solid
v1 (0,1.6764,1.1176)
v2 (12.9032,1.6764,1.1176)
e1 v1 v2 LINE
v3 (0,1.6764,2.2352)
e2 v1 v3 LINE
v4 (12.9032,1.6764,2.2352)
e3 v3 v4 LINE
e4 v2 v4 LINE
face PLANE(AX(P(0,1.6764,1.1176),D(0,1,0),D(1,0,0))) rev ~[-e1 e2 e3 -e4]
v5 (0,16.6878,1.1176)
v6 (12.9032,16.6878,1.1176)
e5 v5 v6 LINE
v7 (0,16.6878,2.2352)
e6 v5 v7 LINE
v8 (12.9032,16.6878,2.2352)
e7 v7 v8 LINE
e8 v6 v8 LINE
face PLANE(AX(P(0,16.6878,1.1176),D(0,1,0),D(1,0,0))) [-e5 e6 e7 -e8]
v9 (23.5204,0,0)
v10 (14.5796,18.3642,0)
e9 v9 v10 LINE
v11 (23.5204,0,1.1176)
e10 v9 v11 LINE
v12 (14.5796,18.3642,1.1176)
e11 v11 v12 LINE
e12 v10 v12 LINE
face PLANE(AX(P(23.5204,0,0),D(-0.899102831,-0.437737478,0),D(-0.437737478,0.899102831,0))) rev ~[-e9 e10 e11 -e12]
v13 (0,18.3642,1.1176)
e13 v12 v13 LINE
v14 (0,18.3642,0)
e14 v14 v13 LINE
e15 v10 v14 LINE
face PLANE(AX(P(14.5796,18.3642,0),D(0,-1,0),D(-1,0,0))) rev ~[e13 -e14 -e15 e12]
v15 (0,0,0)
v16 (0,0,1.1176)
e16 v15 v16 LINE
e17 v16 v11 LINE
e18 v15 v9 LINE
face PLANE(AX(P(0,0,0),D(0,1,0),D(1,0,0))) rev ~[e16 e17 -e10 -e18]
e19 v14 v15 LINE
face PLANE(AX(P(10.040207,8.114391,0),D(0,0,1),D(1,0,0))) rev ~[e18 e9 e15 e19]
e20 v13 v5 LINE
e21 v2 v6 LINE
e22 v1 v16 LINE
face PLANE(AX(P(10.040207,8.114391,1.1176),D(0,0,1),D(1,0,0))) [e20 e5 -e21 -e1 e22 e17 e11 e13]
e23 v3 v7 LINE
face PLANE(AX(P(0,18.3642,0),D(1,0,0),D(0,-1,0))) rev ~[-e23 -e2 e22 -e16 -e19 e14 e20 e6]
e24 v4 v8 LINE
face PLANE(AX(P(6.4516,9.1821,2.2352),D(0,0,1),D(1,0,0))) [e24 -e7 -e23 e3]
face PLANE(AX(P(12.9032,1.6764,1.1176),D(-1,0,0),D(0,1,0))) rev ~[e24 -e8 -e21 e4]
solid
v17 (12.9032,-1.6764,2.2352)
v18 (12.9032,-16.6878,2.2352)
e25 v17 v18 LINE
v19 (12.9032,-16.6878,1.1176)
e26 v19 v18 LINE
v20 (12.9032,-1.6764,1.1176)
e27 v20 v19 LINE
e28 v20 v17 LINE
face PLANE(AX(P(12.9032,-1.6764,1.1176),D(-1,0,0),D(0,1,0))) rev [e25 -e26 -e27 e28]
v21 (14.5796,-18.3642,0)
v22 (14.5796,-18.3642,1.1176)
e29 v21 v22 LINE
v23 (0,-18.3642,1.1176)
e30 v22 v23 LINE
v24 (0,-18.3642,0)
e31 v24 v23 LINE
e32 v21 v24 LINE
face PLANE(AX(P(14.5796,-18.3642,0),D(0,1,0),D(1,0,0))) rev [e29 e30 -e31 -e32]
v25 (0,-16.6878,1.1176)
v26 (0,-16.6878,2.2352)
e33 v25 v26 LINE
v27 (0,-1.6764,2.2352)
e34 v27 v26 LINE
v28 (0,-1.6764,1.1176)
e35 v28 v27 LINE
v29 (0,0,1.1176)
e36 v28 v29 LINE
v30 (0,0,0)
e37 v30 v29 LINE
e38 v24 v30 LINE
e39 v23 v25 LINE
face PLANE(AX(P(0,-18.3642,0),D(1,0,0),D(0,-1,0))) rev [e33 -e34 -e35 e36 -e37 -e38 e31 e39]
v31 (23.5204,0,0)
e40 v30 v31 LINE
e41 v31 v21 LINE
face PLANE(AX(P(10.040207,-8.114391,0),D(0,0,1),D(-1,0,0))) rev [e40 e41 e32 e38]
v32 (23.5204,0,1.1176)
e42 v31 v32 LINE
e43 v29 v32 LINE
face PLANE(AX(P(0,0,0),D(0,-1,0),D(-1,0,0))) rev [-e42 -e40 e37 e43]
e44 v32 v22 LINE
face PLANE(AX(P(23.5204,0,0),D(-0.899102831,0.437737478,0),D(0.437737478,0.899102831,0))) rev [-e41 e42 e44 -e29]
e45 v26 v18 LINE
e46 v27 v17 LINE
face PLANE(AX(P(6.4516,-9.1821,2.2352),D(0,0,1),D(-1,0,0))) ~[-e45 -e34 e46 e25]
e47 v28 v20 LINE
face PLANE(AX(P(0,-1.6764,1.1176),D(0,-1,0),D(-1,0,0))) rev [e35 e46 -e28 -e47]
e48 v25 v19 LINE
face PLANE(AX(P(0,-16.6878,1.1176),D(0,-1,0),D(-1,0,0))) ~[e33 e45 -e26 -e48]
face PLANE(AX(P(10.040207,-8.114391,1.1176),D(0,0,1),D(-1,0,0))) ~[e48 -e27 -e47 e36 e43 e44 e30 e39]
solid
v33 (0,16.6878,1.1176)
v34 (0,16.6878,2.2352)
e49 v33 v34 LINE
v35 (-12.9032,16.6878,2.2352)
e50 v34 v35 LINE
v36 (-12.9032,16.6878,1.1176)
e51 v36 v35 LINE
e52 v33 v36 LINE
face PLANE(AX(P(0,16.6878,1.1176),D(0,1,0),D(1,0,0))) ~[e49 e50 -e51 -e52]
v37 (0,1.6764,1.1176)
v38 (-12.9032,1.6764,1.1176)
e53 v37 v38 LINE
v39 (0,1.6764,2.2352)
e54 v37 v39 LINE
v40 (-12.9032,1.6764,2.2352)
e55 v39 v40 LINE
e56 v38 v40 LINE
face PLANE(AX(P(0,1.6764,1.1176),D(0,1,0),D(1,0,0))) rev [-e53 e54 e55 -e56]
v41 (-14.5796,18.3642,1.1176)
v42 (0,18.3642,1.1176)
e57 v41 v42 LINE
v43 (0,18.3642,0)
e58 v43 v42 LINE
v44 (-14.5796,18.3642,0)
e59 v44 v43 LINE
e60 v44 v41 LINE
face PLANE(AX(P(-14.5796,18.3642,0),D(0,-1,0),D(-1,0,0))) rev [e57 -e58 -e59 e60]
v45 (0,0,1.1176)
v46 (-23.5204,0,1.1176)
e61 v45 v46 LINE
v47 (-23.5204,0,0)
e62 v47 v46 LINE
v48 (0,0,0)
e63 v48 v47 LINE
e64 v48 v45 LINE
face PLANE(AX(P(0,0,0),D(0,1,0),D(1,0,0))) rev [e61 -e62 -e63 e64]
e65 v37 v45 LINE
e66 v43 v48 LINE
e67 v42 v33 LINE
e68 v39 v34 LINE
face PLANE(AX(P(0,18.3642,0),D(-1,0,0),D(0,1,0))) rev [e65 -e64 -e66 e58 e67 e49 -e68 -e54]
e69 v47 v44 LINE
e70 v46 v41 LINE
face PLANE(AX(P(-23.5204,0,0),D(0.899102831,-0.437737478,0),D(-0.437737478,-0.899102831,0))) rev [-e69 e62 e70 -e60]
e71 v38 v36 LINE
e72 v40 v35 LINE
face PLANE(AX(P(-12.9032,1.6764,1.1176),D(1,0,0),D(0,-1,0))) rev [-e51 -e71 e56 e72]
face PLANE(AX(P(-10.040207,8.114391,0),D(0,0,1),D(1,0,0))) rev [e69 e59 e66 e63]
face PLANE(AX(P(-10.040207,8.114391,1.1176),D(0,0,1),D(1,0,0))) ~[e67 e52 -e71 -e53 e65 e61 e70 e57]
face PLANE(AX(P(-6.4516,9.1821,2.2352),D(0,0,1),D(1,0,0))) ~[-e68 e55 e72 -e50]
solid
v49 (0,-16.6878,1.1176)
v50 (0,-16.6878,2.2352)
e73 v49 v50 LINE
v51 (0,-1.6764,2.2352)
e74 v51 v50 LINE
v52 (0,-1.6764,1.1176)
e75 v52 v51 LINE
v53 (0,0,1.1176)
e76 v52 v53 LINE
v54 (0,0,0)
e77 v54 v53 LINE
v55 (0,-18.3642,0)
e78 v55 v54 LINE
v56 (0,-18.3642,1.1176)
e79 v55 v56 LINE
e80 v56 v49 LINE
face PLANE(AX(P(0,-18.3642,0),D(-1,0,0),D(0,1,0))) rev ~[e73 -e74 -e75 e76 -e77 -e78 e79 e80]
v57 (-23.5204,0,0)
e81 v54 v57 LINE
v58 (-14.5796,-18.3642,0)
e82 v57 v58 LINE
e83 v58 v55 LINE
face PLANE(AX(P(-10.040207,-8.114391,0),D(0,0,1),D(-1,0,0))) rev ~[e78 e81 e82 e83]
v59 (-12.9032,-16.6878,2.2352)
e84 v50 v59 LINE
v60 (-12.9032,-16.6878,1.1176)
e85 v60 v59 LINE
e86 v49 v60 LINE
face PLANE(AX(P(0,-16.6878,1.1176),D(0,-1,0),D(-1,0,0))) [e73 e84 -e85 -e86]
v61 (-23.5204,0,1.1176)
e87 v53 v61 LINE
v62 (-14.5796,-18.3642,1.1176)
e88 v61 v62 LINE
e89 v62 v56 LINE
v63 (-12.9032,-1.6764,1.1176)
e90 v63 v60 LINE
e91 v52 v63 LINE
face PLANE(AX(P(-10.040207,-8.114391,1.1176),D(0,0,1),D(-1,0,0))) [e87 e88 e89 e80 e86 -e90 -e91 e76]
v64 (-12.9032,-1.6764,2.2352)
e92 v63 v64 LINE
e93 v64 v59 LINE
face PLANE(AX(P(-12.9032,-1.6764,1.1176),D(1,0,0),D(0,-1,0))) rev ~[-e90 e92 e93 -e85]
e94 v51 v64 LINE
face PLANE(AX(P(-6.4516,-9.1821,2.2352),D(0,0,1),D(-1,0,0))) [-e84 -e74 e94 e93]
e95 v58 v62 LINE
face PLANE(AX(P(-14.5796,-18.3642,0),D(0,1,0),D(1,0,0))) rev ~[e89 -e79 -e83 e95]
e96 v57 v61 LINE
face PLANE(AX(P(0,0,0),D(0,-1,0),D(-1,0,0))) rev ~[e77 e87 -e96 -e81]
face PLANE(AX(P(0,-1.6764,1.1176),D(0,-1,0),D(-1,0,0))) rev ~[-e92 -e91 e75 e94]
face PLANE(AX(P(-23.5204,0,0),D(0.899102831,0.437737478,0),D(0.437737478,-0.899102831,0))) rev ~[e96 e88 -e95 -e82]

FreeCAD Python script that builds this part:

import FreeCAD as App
import Part
import Sketcher
from FreeCAD import Vector
Q = App.Units.Quantity

doc = App.newDocument("Part")
body = doc.addObject("PartDesign::Body", "Body")

# Sketch on XY plane
sketch1 = body.newObject("Sketcher::SketchObject", "Sketch")
sketch1.AttachmentSupport = (doc.getObject("XY_Plane"), [""])
sketch1.MapMode = "FlatFace"
sketch1.addGeometry([
    Part.LineSegment(Vector(0, 18, 0), Vector(0, 0, 0)),
    Part.LineSegment(Vector(0, 0, 0), Vector(24, 0, 0)),
    Part.LineSegment(Vector(24, 0, 0), Vector(15, 18, 0)),
    Part.LineSegment(Vector(15, 18, 0), Vector(0, 18, 0)),
], False)
sketch1.addConstraint([
    Sketcher.Constraint("Coincident", 0, 2, 1, 1),
    Sketcher.Constraint("Coincident", 1, 2, 2, 1),
    Sketcher.Constraint("Coincident", 2, 2, 3, 1),
    Sketcher.Constraint("Coincident", 3, 2, 0, 1),
    Sketcher.Constraint("Vertical", 0),
    Sketcher.Constraint("Horizontal", 1),
    Sketcher.Constraint("Horizontal", 3),
    Sketcher.Constraint("Coincident", 0, 2, -1, 1),
    Sketcher.Constraint("DistanceX", 1, 1, 1, 2, Q("0.926 in")),
    Sketcher.Constraint("DistanceX", 3, 2, 3, 1, Q("0.574 in")),
    Sketcher.Constraint("DistanceY", 0, 2, 0, 1, Q("0.723 in")),
])
pad1 = body.newObject("PartDesign::Pad", "Pad")
pad1.Profile = sketch1
pad1.Length = Q("0.044 in")

# Sketch on XY plane
sketch2 = body.newObject("Sketcher::SketchObject", "Sketch001")
sketch2.AttachmentSupport = (doc.getObject("XY_Plane"), [""])
sketch2.MapMode = "FlatFace"
sketch2.AttachmentOffset = App.Placement(Vector(0, 0, 0.044 * 25.4), App.Rotation())
sketch2.addGeometry([
    Part.LineSegment(Vector(0, 17, 0), Vector(0, 2, 0)),
    Part.LineSegment(Vector(0, 2, 0), Vector(13, 2, 0)),
    Part.LineSegment(Vector(13, 2, 0), Vector(13, 17, 0)),
    Part.LineSegment(Vector(13, 17, 0), Vector(0, 17, 0)),
], False)
sketch2.addConstraint([
    Sketcher.Constraint("Coincident", 0, 2, 1, 1),
    Sketcher.Constraint("Coincident", 1, 2, 2, 1),
    Sketcher.Constraint("Coincident", 2, 2, 3, 1),
    Sketcher.Constraint("Coincident", 3, 2, 0, 1),
    Sketcher.Constraint("Vertical", 0),
    Sketcher.Constraint("Horizontal", 1),
    Sketcher.Constraint("Vertical", 2),
    Sketcher.Constraint("Horizontal", 3),
    Sketcher.Constraint("PointOnObject", 0, 2, -2),
    Sketcher.Constraint("DistanceX", 1, 1, 1, 2, Q("0.508 in")),
    Sketcher.Constraint("DistanceY", 0, 2, 0, 1, Q("0.591 in")),
    Sketcher.Constraint("DistanceY", -1, 1, 0, 2, Q("0.066 in")),
])
pad2 = body.newObject("PartDesign::Pad", "Pad001")
pad2.Profile = sketch2
pad2.Length = Q("0.044 in")
body2 = doc.addObject("PartDesign::Body", "Body001")
doc.recompute()

mirroring = doc.addObject("Part::Mirroring", "Mirroring")
mirroring.Source = body
mirroring.Base = Vector(0, 9.1821, 1.061465)
mirroring.Normal = Vector(-1, 0, 0)
body2.BaseFeature = mirroring
doc.recompute()
body3 = doc.addObject("PartDesign::Body", "Body002")
doc.recompute()

mirroring2 = doc.addObject("Part::Mirroring", "Mirroring001")
mirroring2.Source = body2
mirroring2.Base = Vector(0, 0, 0)
mirroring2.Normal = Vector(0, -1, 0)
body3.BaseFeature = mirroring2
doc.recompute()
body4 = doc.addObject("PartDesign::Body", "Body003")
doc.recompute()

mirroring3 = doc.addObject("Part::Mirroring", "Mirroring002")
mirroring3.Source = body
mirroring3.Base = Vector(0, 0, 0)
mirroring3.Normal = Vector(0, -1, 0)
body4.BaseFeature = mirroring3
doc.recompute()
mirroring.Visibility = False
mirroring2.Visibility = False
mirroring3.Visibility = False

doc.recompute()
